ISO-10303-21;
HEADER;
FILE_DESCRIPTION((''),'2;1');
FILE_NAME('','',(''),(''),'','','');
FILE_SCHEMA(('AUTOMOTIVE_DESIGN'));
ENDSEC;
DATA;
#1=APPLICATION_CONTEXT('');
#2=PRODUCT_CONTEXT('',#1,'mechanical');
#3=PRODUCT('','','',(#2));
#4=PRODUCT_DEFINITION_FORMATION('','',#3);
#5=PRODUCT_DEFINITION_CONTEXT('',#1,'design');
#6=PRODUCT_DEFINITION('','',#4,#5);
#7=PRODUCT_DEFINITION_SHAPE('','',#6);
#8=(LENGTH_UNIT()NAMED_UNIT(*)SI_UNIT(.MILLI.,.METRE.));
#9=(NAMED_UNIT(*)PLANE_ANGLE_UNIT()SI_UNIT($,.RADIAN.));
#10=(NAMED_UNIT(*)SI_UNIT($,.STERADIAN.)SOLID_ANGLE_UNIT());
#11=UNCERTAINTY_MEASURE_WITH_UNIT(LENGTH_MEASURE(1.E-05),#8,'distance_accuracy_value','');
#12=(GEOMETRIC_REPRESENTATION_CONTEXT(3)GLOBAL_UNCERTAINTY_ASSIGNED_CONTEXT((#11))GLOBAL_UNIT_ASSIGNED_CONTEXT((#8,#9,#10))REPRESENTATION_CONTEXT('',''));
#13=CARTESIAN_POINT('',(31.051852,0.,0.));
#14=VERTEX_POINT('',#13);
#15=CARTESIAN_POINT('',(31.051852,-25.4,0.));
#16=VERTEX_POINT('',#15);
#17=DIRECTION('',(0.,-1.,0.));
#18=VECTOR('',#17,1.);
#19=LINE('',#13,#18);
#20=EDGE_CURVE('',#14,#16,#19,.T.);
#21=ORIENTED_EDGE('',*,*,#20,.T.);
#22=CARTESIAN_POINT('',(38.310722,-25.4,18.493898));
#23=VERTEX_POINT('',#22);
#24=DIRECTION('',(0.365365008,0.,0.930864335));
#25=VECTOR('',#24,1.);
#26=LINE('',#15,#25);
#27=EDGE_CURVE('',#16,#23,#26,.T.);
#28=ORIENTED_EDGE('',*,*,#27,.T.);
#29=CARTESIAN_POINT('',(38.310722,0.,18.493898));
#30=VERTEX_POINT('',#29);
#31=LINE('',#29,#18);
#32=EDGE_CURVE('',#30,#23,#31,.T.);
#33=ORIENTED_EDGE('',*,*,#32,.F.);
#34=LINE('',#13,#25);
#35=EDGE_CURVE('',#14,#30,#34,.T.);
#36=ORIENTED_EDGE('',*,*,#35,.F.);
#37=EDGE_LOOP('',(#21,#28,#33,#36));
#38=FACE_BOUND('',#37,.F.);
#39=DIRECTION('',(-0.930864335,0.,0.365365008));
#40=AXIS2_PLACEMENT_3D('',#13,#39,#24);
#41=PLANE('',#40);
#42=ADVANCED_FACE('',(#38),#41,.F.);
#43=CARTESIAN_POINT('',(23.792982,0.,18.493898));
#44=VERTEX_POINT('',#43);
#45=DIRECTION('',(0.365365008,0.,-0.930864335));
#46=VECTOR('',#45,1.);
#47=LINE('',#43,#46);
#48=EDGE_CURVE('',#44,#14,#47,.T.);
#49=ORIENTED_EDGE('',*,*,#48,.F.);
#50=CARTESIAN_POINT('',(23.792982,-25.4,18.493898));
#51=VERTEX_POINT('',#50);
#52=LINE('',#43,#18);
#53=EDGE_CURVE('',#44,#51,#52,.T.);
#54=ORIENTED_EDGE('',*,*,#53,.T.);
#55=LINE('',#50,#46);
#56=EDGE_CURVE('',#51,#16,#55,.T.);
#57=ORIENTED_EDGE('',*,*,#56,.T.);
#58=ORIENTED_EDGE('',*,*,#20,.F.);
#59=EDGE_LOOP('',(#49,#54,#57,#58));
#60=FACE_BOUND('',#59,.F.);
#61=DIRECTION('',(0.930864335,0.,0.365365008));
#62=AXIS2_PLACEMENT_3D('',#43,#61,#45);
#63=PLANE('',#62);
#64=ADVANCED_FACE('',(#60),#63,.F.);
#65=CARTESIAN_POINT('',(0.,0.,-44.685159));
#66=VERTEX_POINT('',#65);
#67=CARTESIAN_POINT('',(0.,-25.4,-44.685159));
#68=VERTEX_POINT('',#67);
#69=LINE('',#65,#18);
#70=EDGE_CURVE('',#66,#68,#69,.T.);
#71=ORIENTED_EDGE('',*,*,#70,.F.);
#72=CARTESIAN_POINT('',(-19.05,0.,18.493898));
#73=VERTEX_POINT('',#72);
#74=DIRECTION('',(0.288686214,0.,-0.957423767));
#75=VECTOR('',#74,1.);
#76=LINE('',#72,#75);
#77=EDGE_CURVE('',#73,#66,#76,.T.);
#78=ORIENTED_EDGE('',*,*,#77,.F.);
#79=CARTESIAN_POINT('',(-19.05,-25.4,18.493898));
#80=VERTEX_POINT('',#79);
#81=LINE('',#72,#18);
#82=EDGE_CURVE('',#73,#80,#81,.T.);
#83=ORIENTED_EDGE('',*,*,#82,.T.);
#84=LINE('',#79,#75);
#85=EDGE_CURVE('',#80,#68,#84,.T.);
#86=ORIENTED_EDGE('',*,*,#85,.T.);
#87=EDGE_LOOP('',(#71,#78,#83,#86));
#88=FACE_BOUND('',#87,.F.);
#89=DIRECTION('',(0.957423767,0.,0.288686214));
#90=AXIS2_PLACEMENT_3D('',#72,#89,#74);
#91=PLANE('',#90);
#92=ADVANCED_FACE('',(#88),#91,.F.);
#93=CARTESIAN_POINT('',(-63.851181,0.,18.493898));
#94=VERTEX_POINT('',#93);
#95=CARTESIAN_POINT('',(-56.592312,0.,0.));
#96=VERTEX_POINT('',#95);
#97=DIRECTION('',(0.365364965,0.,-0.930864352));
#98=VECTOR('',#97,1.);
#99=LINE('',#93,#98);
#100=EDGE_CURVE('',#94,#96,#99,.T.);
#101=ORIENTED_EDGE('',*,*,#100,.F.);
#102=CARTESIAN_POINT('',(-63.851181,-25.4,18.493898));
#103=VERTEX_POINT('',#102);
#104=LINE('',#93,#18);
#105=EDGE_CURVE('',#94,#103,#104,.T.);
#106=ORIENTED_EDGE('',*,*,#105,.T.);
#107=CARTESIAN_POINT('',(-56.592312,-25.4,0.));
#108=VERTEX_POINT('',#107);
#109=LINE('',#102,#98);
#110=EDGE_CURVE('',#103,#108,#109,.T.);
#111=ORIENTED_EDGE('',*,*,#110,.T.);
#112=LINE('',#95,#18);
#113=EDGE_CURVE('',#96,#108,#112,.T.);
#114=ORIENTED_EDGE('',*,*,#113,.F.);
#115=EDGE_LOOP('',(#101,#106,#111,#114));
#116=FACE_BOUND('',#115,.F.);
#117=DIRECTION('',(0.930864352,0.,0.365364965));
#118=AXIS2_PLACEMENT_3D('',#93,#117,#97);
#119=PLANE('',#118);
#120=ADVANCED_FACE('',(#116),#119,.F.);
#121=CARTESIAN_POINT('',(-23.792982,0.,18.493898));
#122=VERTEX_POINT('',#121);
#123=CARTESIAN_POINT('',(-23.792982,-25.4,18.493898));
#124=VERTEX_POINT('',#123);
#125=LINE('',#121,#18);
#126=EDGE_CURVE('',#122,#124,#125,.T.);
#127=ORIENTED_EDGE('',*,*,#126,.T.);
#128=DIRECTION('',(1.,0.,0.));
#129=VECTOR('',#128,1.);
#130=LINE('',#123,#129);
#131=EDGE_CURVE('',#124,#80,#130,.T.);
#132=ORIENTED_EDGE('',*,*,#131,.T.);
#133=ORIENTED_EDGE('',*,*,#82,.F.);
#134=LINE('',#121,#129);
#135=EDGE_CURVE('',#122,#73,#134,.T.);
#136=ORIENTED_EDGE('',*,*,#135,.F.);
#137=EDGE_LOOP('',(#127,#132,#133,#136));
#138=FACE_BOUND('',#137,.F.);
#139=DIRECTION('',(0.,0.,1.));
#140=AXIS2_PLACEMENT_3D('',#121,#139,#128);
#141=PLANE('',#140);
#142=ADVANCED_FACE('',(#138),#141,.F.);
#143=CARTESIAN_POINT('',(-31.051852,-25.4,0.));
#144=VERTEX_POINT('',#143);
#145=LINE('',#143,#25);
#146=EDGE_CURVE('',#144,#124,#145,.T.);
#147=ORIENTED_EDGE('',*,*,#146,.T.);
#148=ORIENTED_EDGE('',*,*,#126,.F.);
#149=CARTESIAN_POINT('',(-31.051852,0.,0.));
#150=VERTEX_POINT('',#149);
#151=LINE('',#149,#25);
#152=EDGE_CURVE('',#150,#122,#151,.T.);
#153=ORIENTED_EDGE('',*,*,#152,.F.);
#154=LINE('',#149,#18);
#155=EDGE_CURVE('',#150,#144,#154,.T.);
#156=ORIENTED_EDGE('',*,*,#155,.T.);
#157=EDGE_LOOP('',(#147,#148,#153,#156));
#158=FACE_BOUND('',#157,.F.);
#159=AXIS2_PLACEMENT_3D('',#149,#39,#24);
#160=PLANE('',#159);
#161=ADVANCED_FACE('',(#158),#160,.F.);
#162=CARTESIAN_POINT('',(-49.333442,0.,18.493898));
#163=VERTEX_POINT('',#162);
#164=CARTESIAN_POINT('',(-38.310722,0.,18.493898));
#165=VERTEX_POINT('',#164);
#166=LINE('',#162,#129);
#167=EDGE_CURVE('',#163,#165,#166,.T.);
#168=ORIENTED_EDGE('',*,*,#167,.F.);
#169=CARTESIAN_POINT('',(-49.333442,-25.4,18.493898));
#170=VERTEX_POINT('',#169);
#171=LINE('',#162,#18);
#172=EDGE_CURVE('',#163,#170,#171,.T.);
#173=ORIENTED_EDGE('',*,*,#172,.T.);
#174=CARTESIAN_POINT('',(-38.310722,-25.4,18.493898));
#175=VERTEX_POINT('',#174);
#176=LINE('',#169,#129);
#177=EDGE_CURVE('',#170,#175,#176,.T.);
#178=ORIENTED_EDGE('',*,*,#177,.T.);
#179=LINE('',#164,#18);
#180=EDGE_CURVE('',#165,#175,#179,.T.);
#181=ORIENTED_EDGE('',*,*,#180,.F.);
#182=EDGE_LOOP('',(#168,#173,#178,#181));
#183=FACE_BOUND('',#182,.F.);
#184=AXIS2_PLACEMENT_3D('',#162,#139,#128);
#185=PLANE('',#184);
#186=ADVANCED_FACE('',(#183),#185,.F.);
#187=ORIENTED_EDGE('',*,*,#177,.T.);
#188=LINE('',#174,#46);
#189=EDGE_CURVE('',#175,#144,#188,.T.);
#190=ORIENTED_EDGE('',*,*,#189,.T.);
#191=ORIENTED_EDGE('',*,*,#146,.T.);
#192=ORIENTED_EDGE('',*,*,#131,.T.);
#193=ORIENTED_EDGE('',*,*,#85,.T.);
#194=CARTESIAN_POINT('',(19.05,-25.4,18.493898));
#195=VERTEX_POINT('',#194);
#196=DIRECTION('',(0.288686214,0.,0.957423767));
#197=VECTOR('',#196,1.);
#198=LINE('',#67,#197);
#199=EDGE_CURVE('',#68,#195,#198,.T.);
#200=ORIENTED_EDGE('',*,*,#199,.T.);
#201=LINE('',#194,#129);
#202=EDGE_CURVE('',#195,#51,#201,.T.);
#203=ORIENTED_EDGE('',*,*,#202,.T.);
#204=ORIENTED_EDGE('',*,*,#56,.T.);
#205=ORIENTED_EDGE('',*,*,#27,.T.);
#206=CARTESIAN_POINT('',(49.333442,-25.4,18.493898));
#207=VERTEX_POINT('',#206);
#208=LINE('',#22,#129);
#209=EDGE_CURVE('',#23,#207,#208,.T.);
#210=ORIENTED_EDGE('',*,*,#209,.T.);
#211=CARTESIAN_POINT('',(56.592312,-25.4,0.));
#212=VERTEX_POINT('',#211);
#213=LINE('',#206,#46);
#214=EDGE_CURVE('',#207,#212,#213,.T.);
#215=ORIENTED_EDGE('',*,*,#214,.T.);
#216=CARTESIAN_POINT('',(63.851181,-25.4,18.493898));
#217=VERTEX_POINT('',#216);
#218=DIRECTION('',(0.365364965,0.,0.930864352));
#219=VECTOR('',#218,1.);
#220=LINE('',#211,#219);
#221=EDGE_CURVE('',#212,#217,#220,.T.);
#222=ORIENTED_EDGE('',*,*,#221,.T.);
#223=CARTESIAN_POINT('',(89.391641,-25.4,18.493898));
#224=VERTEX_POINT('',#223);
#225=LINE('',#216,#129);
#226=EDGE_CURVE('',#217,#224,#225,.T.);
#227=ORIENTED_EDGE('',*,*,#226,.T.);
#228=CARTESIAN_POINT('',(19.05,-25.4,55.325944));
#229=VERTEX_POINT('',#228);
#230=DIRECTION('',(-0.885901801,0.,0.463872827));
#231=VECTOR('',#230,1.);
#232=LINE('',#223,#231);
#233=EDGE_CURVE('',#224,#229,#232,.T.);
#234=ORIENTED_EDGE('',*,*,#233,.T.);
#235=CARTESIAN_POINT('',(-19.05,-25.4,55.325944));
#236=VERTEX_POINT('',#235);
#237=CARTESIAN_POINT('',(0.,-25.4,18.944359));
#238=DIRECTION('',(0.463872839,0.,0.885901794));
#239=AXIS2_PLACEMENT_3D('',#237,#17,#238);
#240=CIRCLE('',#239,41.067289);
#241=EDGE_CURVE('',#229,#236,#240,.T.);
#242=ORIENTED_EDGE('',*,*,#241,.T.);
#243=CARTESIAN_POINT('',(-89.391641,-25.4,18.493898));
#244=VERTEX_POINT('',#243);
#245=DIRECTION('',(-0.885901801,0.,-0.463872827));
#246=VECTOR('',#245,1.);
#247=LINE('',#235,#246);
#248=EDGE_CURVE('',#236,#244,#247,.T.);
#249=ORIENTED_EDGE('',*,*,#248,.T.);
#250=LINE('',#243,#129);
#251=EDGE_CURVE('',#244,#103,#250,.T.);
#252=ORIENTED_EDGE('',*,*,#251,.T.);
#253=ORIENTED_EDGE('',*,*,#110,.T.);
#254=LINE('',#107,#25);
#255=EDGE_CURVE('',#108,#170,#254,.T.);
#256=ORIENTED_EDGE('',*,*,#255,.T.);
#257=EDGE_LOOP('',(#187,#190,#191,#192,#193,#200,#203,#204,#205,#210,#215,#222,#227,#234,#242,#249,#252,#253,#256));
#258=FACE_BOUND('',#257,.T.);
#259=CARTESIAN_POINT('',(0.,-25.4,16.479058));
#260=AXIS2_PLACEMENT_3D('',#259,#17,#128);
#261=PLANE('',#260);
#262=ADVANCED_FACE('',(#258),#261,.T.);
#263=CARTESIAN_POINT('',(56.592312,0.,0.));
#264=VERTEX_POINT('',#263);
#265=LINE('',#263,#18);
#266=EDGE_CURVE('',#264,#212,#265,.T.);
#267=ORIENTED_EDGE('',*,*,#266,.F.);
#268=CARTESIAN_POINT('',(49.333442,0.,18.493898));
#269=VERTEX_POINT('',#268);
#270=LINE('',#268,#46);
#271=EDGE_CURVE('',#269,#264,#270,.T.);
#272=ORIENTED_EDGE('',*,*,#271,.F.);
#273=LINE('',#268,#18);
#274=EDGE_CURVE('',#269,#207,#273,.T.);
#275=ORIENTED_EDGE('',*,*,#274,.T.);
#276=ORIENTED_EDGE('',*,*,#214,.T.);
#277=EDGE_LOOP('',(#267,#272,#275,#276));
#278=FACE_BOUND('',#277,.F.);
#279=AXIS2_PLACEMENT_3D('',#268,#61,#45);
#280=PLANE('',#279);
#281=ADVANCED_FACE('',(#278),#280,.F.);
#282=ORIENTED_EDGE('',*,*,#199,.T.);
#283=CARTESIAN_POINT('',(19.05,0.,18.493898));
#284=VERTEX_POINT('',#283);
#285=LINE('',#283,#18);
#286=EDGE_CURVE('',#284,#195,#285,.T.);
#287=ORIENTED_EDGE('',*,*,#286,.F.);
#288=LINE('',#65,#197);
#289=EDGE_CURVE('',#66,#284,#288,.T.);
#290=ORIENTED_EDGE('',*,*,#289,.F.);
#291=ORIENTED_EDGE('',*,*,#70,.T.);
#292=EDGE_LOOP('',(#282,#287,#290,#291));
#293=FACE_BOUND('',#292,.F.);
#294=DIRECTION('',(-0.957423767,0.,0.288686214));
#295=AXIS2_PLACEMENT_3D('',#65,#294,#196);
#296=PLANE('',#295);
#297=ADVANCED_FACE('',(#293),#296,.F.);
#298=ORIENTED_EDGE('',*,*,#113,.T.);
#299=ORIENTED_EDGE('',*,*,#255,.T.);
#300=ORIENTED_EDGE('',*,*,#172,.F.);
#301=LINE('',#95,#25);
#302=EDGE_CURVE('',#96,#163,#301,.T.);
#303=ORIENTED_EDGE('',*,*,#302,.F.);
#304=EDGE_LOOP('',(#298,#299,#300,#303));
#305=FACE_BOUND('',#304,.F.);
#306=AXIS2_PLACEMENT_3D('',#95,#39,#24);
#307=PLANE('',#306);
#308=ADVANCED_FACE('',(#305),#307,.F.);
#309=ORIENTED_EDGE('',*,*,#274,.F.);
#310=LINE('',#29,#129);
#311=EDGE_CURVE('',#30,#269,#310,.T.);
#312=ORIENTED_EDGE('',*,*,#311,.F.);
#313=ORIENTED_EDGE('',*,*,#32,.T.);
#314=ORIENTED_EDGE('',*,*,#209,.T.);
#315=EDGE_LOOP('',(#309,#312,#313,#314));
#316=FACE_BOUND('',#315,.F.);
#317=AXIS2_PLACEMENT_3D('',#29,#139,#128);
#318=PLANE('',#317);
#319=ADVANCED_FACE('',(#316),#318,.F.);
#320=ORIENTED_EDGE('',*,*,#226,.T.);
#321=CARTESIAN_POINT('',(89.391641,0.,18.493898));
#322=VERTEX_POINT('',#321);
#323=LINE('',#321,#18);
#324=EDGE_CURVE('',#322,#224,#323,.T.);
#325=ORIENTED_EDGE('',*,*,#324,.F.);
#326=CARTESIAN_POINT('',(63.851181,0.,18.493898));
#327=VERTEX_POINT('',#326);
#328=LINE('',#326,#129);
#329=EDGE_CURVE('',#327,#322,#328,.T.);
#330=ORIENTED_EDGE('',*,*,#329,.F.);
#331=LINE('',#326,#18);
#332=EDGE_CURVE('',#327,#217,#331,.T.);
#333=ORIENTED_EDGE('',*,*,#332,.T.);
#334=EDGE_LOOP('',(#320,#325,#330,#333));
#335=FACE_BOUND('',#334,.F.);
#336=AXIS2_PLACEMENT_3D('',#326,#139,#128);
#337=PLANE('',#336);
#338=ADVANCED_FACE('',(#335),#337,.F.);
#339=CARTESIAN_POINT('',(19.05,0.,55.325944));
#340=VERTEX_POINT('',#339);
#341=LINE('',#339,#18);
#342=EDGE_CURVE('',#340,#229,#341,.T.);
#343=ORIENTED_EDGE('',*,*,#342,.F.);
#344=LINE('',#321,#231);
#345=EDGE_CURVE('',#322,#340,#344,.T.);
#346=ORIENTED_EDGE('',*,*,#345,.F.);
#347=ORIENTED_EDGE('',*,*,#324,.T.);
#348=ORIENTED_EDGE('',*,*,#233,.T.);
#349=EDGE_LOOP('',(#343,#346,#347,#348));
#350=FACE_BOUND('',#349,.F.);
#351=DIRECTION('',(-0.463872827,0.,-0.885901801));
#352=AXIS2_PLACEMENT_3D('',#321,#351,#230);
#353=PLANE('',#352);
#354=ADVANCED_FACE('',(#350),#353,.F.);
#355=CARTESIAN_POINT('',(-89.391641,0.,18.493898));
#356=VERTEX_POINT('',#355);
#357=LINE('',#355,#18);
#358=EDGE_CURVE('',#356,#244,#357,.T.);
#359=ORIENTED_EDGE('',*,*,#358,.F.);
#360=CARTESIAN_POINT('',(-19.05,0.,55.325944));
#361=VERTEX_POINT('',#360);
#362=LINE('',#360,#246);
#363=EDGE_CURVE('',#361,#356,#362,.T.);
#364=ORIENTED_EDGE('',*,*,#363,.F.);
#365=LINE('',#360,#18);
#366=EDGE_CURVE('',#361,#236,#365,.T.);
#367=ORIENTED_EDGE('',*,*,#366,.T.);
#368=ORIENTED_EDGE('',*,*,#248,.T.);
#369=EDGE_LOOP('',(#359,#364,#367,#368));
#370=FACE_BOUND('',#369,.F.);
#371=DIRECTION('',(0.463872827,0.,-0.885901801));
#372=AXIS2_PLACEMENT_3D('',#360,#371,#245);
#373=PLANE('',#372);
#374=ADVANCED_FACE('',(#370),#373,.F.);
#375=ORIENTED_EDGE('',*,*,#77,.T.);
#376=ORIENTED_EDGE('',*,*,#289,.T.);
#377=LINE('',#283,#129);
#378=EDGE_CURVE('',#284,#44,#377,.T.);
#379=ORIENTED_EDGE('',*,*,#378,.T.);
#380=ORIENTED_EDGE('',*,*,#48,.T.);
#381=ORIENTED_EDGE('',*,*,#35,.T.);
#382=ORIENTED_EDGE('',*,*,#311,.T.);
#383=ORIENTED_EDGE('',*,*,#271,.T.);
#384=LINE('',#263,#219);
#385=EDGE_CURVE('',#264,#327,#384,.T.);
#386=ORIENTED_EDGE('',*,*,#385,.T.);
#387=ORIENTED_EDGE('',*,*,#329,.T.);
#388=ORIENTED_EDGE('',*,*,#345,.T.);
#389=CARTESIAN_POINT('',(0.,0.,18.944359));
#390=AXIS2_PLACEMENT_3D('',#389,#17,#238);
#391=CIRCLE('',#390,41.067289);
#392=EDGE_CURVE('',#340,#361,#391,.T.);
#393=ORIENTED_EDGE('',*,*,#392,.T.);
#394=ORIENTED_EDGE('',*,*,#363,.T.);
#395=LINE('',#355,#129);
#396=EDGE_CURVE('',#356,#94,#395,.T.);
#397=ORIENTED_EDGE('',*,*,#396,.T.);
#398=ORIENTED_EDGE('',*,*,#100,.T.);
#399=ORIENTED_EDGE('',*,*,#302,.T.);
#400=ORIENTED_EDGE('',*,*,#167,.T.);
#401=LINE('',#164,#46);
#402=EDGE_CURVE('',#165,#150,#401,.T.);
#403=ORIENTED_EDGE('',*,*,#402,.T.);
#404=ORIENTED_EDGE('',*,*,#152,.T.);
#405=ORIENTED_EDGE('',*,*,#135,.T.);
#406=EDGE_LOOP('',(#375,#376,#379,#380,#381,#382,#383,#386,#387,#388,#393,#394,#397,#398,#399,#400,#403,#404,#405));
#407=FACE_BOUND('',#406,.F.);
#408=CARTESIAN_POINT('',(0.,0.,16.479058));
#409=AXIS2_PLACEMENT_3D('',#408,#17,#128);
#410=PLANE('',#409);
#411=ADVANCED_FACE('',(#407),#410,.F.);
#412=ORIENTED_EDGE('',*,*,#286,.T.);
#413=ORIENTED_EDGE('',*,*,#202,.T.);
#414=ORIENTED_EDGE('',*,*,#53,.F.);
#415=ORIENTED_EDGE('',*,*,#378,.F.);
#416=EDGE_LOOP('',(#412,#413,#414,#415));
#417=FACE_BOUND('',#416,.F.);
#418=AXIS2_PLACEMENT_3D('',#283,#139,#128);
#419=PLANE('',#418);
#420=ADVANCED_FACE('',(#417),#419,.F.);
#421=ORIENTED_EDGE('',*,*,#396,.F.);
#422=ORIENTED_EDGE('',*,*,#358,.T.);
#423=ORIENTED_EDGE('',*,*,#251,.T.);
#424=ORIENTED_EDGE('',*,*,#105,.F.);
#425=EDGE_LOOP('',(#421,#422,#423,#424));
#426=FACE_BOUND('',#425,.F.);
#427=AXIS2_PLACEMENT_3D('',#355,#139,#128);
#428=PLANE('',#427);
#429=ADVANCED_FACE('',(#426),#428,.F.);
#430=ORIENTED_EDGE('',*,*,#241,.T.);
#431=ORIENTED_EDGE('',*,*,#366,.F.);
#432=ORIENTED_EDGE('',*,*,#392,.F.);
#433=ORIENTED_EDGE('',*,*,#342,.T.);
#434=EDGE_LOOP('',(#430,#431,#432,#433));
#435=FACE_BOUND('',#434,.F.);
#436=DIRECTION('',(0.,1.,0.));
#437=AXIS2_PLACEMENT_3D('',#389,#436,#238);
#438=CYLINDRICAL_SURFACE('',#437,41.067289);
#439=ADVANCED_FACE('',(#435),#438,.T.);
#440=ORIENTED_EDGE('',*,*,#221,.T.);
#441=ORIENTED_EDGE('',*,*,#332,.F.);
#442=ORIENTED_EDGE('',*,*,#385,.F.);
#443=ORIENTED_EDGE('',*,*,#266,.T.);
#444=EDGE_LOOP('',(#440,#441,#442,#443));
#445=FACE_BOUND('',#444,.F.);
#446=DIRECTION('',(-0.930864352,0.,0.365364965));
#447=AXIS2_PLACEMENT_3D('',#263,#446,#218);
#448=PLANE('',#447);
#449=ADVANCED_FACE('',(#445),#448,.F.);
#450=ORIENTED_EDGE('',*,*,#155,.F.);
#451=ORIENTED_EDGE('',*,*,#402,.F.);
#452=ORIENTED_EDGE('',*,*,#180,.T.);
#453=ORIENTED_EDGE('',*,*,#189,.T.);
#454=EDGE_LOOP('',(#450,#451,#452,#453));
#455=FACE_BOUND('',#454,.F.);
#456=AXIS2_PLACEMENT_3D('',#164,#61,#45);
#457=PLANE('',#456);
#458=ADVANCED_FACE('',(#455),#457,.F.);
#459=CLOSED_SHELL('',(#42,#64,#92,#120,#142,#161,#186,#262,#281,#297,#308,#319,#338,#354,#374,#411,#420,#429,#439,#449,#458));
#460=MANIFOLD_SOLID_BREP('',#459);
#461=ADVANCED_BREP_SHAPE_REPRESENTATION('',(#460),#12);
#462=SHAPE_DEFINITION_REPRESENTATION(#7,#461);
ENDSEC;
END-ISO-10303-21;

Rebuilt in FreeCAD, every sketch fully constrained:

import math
import FreeCAD as App
import Part
import Sketcher

V = App.Vector
Q = App.Units.Quantity

doc = App.newDocument("Part")
params = doc.addObject("Spreadsheet::Sheet", "Params")
for row, (alias, value) in enumerate([
    ("pad1_length", "1 in"),
], start=1):
    params.set(f"A{row}", alias)
    params.set(f"B{row}", "=" + value)
    params.setAlias(f"B{row}", alias)

body = doc.addObject("PartDesign::Body", "Body")

# Sketch on XZ plane
sketch1 = doc.addObject("Sketcher::SketchObject", "Sketch")
body.addObject(sketch1)
sketch1.AttachmentSupport = (doc.XZ_Plane, [""])
sketch1.MapMode = "FlatFace"
sketch1.addGeometry([
    Part.LineSegment(V(0, -44.685159, 0), V(19.05, 18.493898, 0)),  # 0
    Part.LineSegment(V(19.05, 18.493898, 0), V(23.792982, 18.493898, 0)),  # 1
    Part.LineSegment(V(23.792982, 18.493898, 0), V(31.051852, 0, 0)),  # 2
    Part.LineSegment(V(31.051852, 0, 0), V(38.310722, 18.493898, 0)),  # 3
    Part.LineSegment(V(38.310722, 18.493898, 0), V(49.333442, 18.493898, 0)),  # 4
    Part.LineSegment(V(49.333442, 18.493898, 0), V(56.592312, 0, 0)),  # 5
    Part.LineSegment(V(56.592312, 0, 0), V(63.851181, 18.493898, 0)),  # 6
    Part.LineSegment(V(63.851181, 18.493898, 0), V(89.391641, 18.493898, 0)),  # 7
    Part.LineSegment(V(89.391641, 18.493898, 0), V(19.05, 55.325944, 0)),  # 8
    Part.ArcOfCircle(Part.Circle(V(0, 18.944359, 0), V(0, 0, 1), 41.067289), math.radians(62.362702), math.radians(117.637298)),  # 9
    Part.LineSegment(V(-19.05, 55.325944, 0), V(-89.391641, 18.493898, 0)),  # 10
    Part.LineSegment(V(-89.391641, 18.493898, 0), V(-63.851181, 18.493898, 0)),  # 11
    Part.LineSegment(V(-63.851181, 18.493898, 0), V(-56.592312, 0, 0)),  # 12
    Part.LineSegment(V(-56.592312, 0, 0), V(-49.333442, 18.493898, 0)),  # 13
    Part.LineSegment(V(-49.333442, 18.493898, 0), V(-38.310722, 18.493898, 0)),  # 14
    Part.LineSegment(V(-38.310722, 18.493898, 0), V(-31.051852, 0, 0)),  # 15
    Part.LineSegment(V(-31.051852, 0, 0), V(-23.792982, 18.493898, 0)),  # 16
    Part.LineSegment(V(-23.792982, 18.493898, 0), V(-19.05, 18.493898, 0)),  # 17
    Part.LineSegment(V(-19.05, 18.493898, 0), V(0, -44.685159, 0)),  # 18
], False)
sketch1.addConstraint([
    Sketcher.Constraint("Coincident", 0, 2, 1, 1),
    Sketcher.Constraint("Coincident", 1, 2, 2, 1),
    Sketcher.Constraint("Coincident", 2, 2, 3, 1),
    Sketcher.Constraint("Coincident", 3, 2, 4, 1),
    Sketcher.Constraint("Coincident", 4, 2, 5, 1),
    Sketcher.Constraint("Coincident", 5, 2, 6, 1),
    Sketcher.Constraint("Coincident", 6, 2, 7, 1),
    Sketcher.Constraint("Coincident", 7, 2, 8, 1),
    Sketcher.Constraint("Tangent", 8, 2, 9, 1),
    Sketcher.Constraint("Tangent", 9, 2, 10, 1),
    Sketcher.Constraint("Coincident", 10, 2, 11, 1),
    Sketcher.Constraint("Coincident", 11, 2, 12, 1),
    Sketcher.Constraint("Coincident", 12, 2, 13, 1),
    Sketcher.Constraint("Coincident", 13, 2, 14, 1),
    Sketcher.Constraint("Coincident", 14, 2, 15, 1),
    Sketcher.Constraint("Coincident", 15, 2, 16, 1),
    Sketcher.Constraint("Coincident", 16, 2, 17, 1),
    Sketcher.Constraint("Coincident", 17, 2, 18, 1),
    Sketcher.Constraint("Coincident", 18, 2, 0, 1),
    Sketcher.Constraint("Horizontal", 1),
    Sketcher.Constraint("Horizontal", 4),
    Sketcher.Constraint("Horizontal", 7),
    Sketcher.Constraint("Horizontal", 11),
    Sketcher.Constraint("Horizontal", 14),
    Sketcher.Constraint("Horizontal", 17),
    Sketcher.Constraint("Symmetric", 5, 2, 12, 2, -1, 1),
    Sketcher.Constraint("Symmetric", 2, 2, 15, 2, -1, 1),
    Sketcher.Constraint("Symmetric", 8, 2, 9, 2, -2),
    Sketcher.Constraint("Symmetric", 6, 2, 11, 2, -2),
    Sketcher.Constraint("Symmetric", 4, 2, 13, 2, -2),
    Sketcher.Constraint("Symmetric", 1, 2, 16, 2, -2),
    Sketcher.Constraint("PointOnObject", 2, 2, -1),
    Sketcher.Constraint("PointOnObject", 5, 2, -1),
    Sketcher.Constraint("PointOnObject", 18, 2, -2),
    Sketcher.Constraint("Parallel", 2, 5),
    Sketcher.Constraint("Parallel", 3, 6),
    Sketcher.Constraint("Parallel", 5, 12),
    Sketcher.Constraint("Parallel", 12, 15),
    Sketcher.Constraint("Horizontal", 1, 2, 3, 2),
    Sketcher.Constraint("Horizontal", 4, 2, 6, 2),
    Sketcher.Constraint("Vertical", 0, 2, 8, 2),
    Sketcher.Constraint("Vertical", 9, 2, 17, 2),
    Sketcher.Constraint("DistanceX", 9, 2, 8, 2, Q("1.5 in")),
    Sketcher.Constraint("Radius", 9, Q("41.067289 mm")),
    Sketcher.Constraint("DistanceX", 1, 1, 1, 2, Q("4.742982 mm")),
    Sketcher.Constraint("DistanceX", 4, 1, 4, 2, Q("11.02272 mm")),
    Sketcher.Constraint("DistanceX", 7, 1, 7, 2, Q("25.54046 mm")),
    Sketcher.Constraint("DistanceY", -1, 1, 0, 2, Q("18.493898 mm")),
    Sketcher.Constraint("DistanceX", 1, 2, 6, 2, Q("40.058199 mm")),
    Sketcher.Constraint("DistanceY", 18, 2, -1, 1, Q("44.685159 mm")),
])
pad1 = doc.addObject("PartDesign::Pad", "Pad")
body.addObject(pad1)
pad1.Profile = sketch1
pad1.setExpression("Length", "Params.pad1_length")

doc.recompute()
